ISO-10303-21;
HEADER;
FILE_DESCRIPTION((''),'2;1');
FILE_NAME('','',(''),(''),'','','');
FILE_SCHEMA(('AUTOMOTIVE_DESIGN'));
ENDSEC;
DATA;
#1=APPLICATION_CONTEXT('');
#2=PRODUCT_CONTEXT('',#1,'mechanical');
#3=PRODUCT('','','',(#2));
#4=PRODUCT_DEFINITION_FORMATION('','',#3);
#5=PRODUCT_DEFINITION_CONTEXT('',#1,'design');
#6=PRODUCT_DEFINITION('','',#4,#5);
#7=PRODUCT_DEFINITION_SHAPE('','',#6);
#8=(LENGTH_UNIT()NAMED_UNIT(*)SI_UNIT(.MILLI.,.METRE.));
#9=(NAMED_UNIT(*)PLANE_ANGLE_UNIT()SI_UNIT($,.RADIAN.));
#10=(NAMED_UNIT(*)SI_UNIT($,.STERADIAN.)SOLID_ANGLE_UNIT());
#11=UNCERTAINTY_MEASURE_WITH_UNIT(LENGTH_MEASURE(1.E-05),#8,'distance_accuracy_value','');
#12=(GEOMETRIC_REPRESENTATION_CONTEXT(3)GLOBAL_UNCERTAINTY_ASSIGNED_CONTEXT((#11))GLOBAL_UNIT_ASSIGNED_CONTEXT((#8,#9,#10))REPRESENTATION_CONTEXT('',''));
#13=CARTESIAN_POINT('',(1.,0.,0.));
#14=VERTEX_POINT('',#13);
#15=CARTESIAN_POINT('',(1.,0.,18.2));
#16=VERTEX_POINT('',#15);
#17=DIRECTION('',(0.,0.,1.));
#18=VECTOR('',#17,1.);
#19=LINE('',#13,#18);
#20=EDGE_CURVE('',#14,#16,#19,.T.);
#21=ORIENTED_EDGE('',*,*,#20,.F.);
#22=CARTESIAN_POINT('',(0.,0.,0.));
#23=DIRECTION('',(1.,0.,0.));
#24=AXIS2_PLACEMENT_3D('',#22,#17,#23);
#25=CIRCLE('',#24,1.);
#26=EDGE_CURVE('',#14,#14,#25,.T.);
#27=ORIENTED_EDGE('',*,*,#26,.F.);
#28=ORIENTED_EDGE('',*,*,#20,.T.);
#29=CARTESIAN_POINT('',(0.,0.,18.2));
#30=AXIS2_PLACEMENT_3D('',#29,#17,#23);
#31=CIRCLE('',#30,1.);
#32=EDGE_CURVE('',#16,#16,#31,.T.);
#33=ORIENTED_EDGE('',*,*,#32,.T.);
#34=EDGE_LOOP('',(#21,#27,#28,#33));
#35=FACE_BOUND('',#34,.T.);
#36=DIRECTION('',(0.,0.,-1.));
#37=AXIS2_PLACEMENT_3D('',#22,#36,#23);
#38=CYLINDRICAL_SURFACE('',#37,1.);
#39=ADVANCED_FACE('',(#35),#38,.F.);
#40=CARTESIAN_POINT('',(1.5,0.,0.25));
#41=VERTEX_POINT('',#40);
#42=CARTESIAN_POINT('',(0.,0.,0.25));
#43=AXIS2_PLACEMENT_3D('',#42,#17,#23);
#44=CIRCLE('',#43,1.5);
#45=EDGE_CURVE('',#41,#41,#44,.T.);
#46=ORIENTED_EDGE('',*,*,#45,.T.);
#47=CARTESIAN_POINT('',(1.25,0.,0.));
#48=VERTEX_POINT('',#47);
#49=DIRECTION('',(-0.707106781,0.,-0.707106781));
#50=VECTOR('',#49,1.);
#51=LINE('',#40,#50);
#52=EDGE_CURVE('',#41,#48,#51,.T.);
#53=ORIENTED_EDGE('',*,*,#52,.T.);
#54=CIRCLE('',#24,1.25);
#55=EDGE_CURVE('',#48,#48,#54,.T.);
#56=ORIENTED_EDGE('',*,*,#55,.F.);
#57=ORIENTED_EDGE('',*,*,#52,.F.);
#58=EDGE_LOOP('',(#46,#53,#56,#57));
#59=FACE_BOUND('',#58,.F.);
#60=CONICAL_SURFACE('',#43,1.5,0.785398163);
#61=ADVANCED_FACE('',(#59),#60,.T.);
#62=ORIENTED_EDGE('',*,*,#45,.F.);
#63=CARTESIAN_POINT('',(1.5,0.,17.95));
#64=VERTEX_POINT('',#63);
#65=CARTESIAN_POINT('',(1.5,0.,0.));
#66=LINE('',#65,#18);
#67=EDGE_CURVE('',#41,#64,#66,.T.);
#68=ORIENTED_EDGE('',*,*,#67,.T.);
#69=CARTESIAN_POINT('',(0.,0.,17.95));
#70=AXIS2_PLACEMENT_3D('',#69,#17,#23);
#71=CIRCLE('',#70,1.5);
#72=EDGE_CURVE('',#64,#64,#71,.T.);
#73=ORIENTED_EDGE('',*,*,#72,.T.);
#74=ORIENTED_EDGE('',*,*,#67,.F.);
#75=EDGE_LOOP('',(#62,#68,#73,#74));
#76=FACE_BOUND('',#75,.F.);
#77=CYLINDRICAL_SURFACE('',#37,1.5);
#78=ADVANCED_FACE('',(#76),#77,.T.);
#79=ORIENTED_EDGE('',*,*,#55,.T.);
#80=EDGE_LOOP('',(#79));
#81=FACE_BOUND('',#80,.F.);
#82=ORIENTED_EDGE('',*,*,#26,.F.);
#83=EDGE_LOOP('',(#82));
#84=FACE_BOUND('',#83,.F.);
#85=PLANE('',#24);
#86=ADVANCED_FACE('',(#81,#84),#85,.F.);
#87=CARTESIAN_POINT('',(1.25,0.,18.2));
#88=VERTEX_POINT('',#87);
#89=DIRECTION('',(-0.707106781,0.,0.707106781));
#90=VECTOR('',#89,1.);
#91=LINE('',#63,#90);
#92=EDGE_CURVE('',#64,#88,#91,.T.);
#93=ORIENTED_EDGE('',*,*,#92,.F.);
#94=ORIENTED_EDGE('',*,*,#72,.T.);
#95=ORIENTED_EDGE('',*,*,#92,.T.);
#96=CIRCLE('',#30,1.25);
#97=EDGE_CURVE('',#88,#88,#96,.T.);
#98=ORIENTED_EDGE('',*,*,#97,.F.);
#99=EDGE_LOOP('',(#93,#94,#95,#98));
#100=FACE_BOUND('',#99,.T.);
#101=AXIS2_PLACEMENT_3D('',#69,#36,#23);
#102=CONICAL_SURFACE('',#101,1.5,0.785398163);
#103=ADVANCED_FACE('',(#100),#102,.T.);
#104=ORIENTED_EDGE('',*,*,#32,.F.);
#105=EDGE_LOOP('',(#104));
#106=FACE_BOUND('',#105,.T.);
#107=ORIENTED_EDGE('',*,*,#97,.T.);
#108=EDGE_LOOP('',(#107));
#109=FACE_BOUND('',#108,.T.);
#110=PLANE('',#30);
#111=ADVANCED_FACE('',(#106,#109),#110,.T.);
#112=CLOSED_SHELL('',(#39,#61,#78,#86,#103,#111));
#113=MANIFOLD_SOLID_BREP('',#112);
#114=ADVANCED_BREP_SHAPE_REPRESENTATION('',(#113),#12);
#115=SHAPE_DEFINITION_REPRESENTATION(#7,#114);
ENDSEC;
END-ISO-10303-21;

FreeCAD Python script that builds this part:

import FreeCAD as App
import Part
import Sketcher


def edges_at(feature, points):
    """Names of the edges that pass closest to the given points."""
    edges = feature.Shape.Edges
    near = lambda p: min(range(len(edges)), key=lambda i: edges[i].distToShape(Part.Vertex(*p))[0])
    return sorted({f"Edge{near(p) + 1}" for p in points})

doc = App.newDocument("Part")
body = doc.addObject("PartDesign::Body", "Body")

# Sketch on XY plane
sketch1 = body.newObject("Sketcher::SketchObject", "Sketch")
sketch1.AttachmentSupport = (doc.getObject("XY_Plane"), [""])
sketch1.MapMode = "FlatFace"
sketch1.addGeometry(Part.Circle(App.Vector(0, 0, 0), App.Vector(0, 0, 1), 1.5), False)
sketch1.addGeometry(Part.Circle(App.Vector(0, 0, 0), App.Vector(0, 0, 1), 1), False)
sketch1.addConstraint(Sketcher.Constraint("Coincident", 0, 3, -1, 1))
sketch1.addConstraint(Sketcher.Constraint("Coincident", 1, 3, -1, 1))
sketch1.addConstraint(Sketcher.Constraint("Diameter", 0, 3.0))
sketch1.addConstraint(Sketcher.Constraint("Diameter", 1, 2.0))
pad1 = body.newObject("PartDesign::Pad", "Pad")
pad1.Profile = sketch1
pad1.Length = 18.2
doc.recompute()

chamfer = body.newObject("PartDesign::Chamfer", "Chamfer")
chamfer.Base = (pad1, edges_at(pad1, [(-1.5, 0, 18.2), (-1.5, 0, 0)]))
chamfer.Size = 0.25

doc.recompute()
